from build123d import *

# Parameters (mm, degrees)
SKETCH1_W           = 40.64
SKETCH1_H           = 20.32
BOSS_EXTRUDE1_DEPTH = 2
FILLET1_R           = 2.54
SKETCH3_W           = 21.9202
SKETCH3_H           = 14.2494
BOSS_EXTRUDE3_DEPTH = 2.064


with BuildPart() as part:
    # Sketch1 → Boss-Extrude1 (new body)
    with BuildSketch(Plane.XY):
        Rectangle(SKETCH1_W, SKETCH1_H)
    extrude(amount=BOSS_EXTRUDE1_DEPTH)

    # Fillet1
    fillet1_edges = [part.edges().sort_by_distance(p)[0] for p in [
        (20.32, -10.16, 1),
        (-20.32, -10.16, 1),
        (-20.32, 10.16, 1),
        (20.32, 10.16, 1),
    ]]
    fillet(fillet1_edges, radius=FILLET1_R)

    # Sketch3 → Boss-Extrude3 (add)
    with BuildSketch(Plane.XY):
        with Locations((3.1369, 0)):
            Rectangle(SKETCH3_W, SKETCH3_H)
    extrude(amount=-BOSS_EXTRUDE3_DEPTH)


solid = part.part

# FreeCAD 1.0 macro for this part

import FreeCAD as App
import Part
import Sketcher

V = App.Vector
Q = App.Units.Quantity


def edges_at(feature, points):
    """Names of the edges that pass closest to the given points."""
    edges = feature.Shape.Edges
    near = lambda p: min(range(len(edges)), key=lambda i: edges[i].distToShape(Part.Vertex(*p))[0])
    return sorted({f"Edge{near(p) + 1}" for p in points})


def add_polygon(sketch, points):
    """Adds a closed chain of lines whose ends are joined by coincident constraints."""
    first, n = sketch.GeometryCount, len(points)
    for a, b in zip(points, points[1:] + points[:1]):
        sketch.addGeometry(Part.LineSegment(App.Vector(*a, 0), App.Vector(*b, 0)), False)
    for i in range(n):
        sketch.addConstraint(Sketcher.Constraint("Coincident", first + i, 2, first + (i + 1) % n, 1))

doc = App.newDocument("Part")
body = doc.addObject("PartDesign::Body", "Body")

sketch1 = doc.addObject("Sketcher::SketchObject", "Sketch")
body.addObject(sketch1)
sketch1.AttachmentSupport = (doc.XY_Plane, [""])
sketch1.MapMode = "FlatFace"
add_polygon(sketch1, [(-20, 10), (-20, -10), (20, -10), (20, 10)])
sketch1.addConstraint(Sketcher.Constraint("Vertical", 0))
sketch1.addConstraint(Sketcher.Constraint("Horizontal", 1))
sketch1.addConstraint(Sketcher.Constraint("Vertical", 2))
sketch1.addConstraint(Sketcher.Constraint("Horizontal", 3))
sketch1.addConstraint(Sketcher.Constraint("Symmetric", 0, 2, 2, 2, -1, 1))
sketch1.addConstraint(Sketcher.Constraint("DistanceX", 1, 1, 1, 2, Q("1.6 in")))
sketch1.addConstraint(Sketcher.Constraint("DistanceY", 0, 2, 0, 1, Q("0.8 in")))
pad1 = doc.addObject("PartDesign::Pad", "Pad")
body.addObject(pad1)
pad1.Profile = sketch1
pad1.Length = 2
doc.recompute()

fillet = doc.addObject("PartDesign::Fillet", "Fillet")
body.addObject(fillet)
fillet.Base = (pad1, edges_at(pad1, [
    (20.32, -10.16, 1),
    (-20.32, -10.16, 1),
    (-20.32, 10.16, 1),
    (20.32, 10.16, 1),
]))
fillet.Radius = Q("0.1 in")

sketch2 = doc.addObject("Sketcher::SketchObject", "Sketch001")
body.addObject(sketch2)
sketch2.AttachmentSupport = (doc.XY_Plane, [""])
sketch2.MapMode = "FlatFace"
add_polygon(sketch2, [(-8, 7), (-8, -7), (14, -7), (14, 7)])
sketch2.addConstraint(Sketcher.Constraint("Vertical", 0))
sketch2.addConstraint(Sketcher.Constraint("Horizontal", 1))
sketch2.addConstraint(Sketcher.Constraint("Vertical", 2))
sketch2.addConstraint(Sketcher.Constraint("Horizontal", 3))
sketch2.addConstraint(Sketcher.Constraint("DistanceX", 1, 1, 1, 2, Q("0.863 in")))
sketch2.addConstraint(Sketcher.Constraint("DistanceY", 0, 2, 0, 1, Q("0.561 in")))
sketch2.addConstraint(Sketcher.Constraint("DistanceX", 0, 2, -1, 1, Q("0.308 in")))
sketch2.addConstraint(Sketcher.Constraint("DistanceY", 0, 2, -1, 1, Q("0.2805 in")))
pad2 = doc.addObject("PartDesign::Pad", "Pad001")
body.addObject(pad2)
pad2.Profile = sketch2
pad2.Length = 2.064
pad2.Reversed = True

doc.recompute()
